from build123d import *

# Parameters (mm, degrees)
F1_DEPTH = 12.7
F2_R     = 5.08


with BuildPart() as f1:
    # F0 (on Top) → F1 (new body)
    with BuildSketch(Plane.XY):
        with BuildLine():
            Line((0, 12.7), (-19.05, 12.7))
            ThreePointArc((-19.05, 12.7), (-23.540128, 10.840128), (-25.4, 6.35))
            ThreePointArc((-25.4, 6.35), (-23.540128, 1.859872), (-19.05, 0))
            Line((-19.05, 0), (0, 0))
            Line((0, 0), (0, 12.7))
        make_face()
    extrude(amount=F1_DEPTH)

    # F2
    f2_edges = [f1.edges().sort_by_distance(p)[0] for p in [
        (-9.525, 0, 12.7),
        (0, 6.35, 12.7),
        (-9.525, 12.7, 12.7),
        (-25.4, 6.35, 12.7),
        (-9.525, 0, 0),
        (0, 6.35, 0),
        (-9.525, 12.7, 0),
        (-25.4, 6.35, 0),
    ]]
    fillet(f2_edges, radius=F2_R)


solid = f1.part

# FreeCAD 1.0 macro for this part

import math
import FreeCAD as App
import Part
import Sketcher
Q = App.Units.Quantity


def edges_at(feature, points):
    """Names of the edges that pass closest to the given points."""
    edges = feature.Shape.Edges
    near = lambda p: min(range(len(edges)), key=lambda i: edges[i].distToShape(Part.Vertex(*p))[0])
    return sorted({f"Edge{near(p) + 1}" for p in points})

doc = App.newDocument("Part")
body = doc.addObject("PartDesign::Body", "Body")

sketch1 = body.newObject("Sketcher::SketchObject", "Sketch")
sketch1.AttachmentSupport = (doc.getObject("XY_Plane"), [""])
sketch1.MapMode = "FlatFace"
sketch1.addGeometry([
    Part.LineSegment(App.Vector(0, 13, 0), App.Vector(-19, 13, 0)),
    Part.ArcOfCircle(Part.Circle(App.Vector(-19, 6, 0), App.Vector(0, 0, 1), 6), math.radians(90), math.radians(180)),
    Part.ArcOfCircle(Part.Circle(App.Vector(-19, 6, 0), App.Vector(0, 0, 1), 6), math.radians(-180), math.radians(-90)),
    Part.LineSegment(App.Vector(-19, 0, 0), App.Vector(0, 0, 0)),
    Part.LineSegment(App.Vector(0, 0, 0), App.Vector(0, 13, 0)),
], False)
sketch1.addConstraint([
    Sketcher.Constraint("Tangent", 0, 2, 1, 1),
    Sketcher.Constraint("Tangent", 1, 2, 2, 1),
    Sketcher.Constraint("Tangent", 2, 2, 3, 1),
    Sketcher.Constraint("Coincident", 3, 2, 4, 1),
    Sketcher.Constraint("Coincident", 4, 2, 0, 1),
    Sketcher.Constraint("Horizontal", 0),
    Sketcher.Constraint("Horizontal", 3),
    Sketcher.Constraint("Vertical", 4),
    Sketcher.Constraint("Coincident", 3, 2, -1, 1),
    Sketcher.Constraint("Equal", 1, 2),
    Sketcher.Constraint("Horizontal", 2, 3, 1, 2),
    Sketcher.Constraint("Radius", 1, Q("0.25 in")),
    Sketcher.Constraint("DistanceX", 1, 2, -1, 1, Q("1 in")),
])
pad1 = body.newObject("PartDesign::Pad", "Pad")
pad1.Profile = sketch1
pad1.Length = Q("0.5 in")
doc.recompute()

fillet = body.newObject("PartDesign::Fillet", "Fillet")
fillet.Base = (pad1, edges_at(pad1, [
    (-9.525, 0, 12.7),
    (0, 6.35, 12.7),
    (-9.525, 12.7, 12.7),
    (-25.4, 6.35, 6.35),
    (-9.525, 0, 0),
    (0, 6.35, 0),
    (-9.525, 12.7, 0),
    (-25.4, 6.35, 6.35),
]))
fillet.Radius = Q("0.2 in")

doc.recompute()
